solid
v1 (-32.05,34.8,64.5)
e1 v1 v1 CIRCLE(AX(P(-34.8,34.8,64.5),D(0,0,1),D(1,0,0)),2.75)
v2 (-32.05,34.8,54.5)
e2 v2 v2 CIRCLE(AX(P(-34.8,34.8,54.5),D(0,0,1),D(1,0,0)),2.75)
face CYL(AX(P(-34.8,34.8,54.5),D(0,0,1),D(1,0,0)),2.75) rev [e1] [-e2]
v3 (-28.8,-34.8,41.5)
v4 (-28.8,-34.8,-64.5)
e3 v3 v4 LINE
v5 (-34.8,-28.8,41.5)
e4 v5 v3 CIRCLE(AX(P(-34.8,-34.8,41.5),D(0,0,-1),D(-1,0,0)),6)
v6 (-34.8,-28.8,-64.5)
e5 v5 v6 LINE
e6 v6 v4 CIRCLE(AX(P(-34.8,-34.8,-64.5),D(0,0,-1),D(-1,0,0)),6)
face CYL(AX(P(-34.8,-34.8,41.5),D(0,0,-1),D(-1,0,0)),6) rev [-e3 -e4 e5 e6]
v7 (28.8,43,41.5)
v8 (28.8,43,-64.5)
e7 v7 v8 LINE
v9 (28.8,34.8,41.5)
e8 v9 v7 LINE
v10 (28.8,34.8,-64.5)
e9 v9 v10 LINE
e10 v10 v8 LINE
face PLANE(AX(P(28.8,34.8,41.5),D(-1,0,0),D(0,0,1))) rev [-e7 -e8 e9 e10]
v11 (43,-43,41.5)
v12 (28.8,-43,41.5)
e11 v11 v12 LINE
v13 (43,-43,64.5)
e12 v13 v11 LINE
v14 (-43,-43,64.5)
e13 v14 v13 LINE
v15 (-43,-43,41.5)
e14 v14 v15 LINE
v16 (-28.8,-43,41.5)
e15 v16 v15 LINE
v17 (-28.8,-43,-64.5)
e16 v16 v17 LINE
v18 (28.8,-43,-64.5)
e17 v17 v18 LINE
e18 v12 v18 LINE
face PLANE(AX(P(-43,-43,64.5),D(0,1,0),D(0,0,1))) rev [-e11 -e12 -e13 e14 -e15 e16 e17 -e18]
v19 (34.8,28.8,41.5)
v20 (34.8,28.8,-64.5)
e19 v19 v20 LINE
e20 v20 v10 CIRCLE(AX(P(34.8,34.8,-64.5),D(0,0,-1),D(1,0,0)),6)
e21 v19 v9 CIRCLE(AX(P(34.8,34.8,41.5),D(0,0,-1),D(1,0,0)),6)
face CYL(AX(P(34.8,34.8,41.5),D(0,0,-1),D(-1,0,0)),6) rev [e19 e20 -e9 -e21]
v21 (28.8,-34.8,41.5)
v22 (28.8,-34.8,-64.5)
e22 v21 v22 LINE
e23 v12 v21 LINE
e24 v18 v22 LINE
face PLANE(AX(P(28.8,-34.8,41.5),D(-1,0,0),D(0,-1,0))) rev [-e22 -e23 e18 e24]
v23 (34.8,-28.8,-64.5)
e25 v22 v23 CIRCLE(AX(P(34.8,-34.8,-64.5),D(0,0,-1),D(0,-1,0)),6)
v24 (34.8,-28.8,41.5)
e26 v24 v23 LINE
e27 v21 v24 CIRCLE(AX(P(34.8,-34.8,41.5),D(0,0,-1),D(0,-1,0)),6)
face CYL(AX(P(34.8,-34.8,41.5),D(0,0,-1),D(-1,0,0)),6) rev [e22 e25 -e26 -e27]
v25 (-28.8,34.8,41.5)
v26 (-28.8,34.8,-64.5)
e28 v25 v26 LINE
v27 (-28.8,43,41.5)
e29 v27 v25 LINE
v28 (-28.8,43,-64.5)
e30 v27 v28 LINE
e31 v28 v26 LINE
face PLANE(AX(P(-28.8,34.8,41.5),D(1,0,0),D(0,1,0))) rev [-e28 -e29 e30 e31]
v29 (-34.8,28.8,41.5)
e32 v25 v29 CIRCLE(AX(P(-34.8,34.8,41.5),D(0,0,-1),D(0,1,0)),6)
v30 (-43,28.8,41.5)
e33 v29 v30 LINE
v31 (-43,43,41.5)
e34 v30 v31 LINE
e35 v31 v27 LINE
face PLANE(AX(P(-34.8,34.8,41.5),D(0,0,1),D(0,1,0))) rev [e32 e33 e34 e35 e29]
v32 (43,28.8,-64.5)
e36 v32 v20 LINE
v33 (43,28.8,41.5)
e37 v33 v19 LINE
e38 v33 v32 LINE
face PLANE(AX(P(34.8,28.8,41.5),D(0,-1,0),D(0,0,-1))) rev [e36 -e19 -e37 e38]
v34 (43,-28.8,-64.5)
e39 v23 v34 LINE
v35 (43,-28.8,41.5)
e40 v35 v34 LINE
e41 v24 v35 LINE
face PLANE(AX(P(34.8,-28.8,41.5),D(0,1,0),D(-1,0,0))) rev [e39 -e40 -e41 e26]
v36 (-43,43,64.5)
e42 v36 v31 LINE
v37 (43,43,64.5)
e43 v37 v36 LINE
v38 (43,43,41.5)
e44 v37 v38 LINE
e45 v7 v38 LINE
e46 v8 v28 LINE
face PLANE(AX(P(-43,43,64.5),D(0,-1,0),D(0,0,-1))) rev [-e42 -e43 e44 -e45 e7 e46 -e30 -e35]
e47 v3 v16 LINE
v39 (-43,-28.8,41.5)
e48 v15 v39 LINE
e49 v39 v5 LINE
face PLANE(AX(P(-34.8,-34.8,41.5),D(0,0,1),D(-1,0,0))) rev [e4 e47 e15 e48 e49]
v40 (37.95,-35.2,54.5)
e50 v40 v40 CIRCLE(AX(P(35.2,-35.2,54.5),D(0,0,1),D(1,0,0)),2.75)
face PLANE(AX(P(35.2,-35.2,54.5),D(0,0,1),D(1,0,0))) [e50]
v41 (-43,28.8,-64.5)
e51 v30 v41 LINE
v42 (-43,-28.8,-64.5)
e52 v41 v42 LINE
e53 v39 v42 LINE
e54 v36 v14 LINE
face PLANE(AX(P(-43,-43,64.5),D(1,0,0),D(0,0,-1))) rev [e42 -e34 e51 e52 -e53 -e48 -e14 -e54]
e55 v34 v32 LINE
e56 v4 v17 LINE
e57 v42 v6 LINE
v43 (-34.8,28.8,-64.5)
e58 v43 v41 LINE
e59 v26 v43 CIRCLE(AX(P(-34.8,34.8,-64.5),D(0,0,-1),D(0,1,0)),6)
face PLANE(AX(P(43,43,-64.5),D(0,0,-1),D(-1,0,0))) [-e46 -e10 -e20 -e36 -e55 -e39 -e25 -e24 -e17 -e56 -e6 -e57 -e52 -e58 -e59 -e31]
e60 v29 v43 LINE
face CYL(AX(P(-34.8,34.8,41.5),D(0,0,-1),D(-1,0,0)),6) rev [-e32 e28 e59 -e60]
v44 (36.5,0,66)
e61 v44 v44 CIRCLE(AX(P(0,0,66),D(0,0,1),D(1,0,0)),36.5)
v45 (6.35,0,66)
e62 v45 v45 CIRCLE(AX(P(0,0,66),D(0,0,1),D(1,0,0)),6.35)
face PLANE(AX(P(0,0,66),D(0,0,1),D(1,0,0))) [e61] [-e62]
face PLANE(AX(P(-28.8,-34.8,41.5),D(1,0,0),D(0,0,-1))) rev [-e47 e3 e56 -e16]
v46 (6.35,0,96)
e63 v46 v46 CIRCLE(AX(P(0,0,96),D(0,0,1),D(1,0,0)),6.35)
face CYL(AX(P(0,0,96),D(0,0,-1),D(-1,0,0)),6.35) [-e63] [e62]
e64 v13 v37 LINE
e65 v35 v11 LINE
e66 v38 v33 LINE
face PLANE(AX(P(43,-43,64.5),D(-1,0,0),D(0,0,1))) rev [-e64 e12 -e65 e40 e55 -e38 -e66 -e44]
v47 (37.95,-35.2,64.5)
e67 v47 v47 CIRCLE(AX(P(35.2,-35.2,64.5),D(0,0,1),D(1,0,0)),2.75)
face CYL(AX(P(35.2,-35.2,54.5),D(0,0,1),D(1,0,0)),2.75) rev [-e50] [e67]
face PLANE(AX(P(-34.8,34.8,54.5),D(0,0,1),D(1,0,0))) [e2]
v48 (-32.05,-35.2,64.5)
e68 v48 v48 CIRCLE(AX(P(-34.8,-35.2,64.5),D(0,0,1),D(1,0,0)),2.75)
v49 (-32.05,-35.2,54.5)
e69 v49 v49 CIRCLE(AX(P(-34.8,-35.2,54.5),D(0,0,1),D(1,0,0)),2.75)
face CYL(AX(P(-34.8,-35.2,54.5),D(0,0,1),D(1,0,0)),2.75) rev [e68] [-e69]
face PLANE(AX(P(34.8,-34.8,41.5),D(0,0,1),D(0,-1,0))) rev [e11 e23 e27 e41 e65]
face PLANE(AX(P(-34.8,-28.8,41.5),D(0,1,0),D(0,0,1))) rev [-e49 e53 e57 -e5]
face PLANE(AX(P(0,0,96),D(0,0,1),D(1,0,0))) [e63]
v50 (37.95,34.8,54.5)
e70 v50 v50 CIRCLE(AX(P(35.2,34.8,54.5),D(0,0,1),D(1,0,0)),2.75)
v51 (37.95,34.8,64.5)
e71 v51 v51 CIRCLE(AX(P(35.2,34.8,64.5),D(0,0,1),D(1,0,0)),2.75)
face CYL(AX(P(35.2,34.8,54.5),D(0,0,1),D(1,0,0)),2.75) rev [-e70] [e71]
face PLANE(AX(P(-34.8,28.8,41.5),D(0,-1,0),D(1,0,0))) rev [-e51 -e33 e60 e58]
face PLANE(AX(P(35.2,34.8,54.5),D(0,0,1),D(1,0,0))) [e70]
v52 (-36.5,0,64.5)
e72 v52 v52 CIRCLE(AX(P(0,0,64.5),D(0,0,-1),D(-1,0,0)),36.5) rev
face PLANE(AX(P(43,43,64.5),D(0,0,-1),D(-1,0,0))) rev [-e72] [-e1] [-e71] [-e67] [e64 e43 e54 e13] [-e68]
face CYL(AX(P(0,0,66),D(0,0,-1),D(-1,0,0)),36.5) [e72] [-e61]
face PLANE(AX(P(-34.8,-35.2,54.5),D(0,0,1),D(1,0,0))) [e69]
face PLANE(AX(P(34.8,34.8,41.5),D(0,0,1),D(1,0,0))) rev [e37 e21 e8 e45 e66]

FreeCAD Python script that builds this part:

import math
import FreeCAD as App
import Part
import Sketcher
from FreeCAD import Vector
Q = App.Units.Quantity

doc = App.newDocument("Part")
body = doc.addObject("PartDesign::Body", "Body")

# Sketch on XY plane
sketch1 = doc.addObject("Sketcher::SketchObject", "Sketch")
body.addObject(sketch1)
sketch1.AttachmentSupport = (doc.XY_Plane, [""])
sketch1.MapMode = "FlatFace"
sketch1.addGeometry(Part.LineSegment(Vector(-43, 43, 0), Vector(-43, -43, 0)), False)
sketch1.addGeometry(Part.LineSegment(Vector(-43, -43, 0), Vector(43, -43, 0)), False)
sketch1.addGeometry(Part.LineSegment(Vector(43, -43, 0), Vector(43, 43, 0)), False)
sketch1.addGeometry(Part.LineSegment(Vector(43, 43, 0), Vector(-43, 43, 0)), False)
sketch1.addConstraint(Sketcher.Constraint("Coincident", 0, 2, 1, 1))
sketch1.addConstraint(Sketcher.Constraint("Coincident", 1, 2, 2, 1))
sketch1.addConstraint(Sketcher.Constraint("Coincident", 2, 2, 3, 1))
sketch1.addConstraint(Sketcher.Constraint("Coincident", 3, 2, 0, 1))
sketch1.addConstraint(Sketcher.Constraint("Vertical", 0))
sketch1.addConstraint(Sketcher.Constraint("Horizontal", 1))
sketch1.addConstraint(Sketcher.Constraint("Vertical", 2))
sketch1.addConstraint(Sketcher.Constraint("Horizontal", 3))
sketch1.addConstraint(Sketcher.Constraint("Symmetric", 0, 2, 2, 2, -1, 1))
sketch1.addConstraint(Sketcher.Constraint("Equal", 3, 0))
sketch1.addConstraint(Sketcher.Constraint("DistanceX", 1, 1, 1, 2, Q("86 mm")))
pad1 = doc.addObject("PartDesign::Pad", "Pad")
body.addObject(pad1)
pad1.Profile = sketch1
pad1.Length = 129
pad1.Midplane = True

# Sketch on XY plane
sketch2 = doc.addObject("Sketcher::SketchObject", "Sketch001")
body.addObject(sketch2)
sketch2.AttachmentSupport = (doc.XY_Plane, [""])
sketch2.MapMode = "FlatFace"
sketch2.AttachmentOffset = App.Placement(Vector(0, 0, -64.5), App.Rotation())
sketch2.addGeometry(Part.LineSegment(Vector(28.8, 34.8, 0), Vector(28.8, 43, 0)), False)
sketch2.addGeometry(Part.LineSegment(Vector(28.8, 43, 0), Vector(43, 43, 0)), False)
sketch2.addGeometry(Part.LineSegment(Vector(43, 43, 0), Vector(43, 28.8, 0)), False)
sketch2.addGeometry(Part.LineSegment(Vector(43, 28.8, 0), Vector(34.8, 28.8, 0)), False)
sketch2.addGeometry(Part.ArcOfCircle(Part.Circle(Vector(34.8, 34.8, 0), Vector(0, 0, 1), 6), math.radians(180), math.radians(270)), False)
sketch2.addConstraint(Sketcher.Constraint("Coincident", 0, 2, 1, 1))
sketch2.addConstraint(Sketcher.Constraint("Coincident", 1, 2, 2, 1))
sketch2.addConstraint(Sketcher.Constraint("Coincident", 2, 2, 3, 1))
sketch2.addConstraint(Sketcher.Constraint("Tangent", 3, 2, 4, 2))
sketch2.addConstraint(Sketcher.Constraint("Tangent", 4, 1, 0, 1))
sketch2.addConstraint(Sketcher.Constraint("Vertical", 0))
sketch2.addConstraint(Sketcher.Constraint("Horizontal", 1))
sketch2.addConstraint(Sketcher.Constraint("Vertical", 2))
sketch2.addConstraint(Sketcher.Constraint("Horizontal", 3))
sketch2.addConstraint(Sketcher.Constraint("Equal", 3, 0))
sketch2.addConstraint(Sketcher.Constraint("Radius", 4, Q("6 mm")))
sketch2.addConstraint(Sketcher.Constraint("DistanceX", 1, 1, 1, 2, Q("14.2 mm")))
sketch2.addConstraint(Sketcher.Constraint("DistanceY", -1, 1, 0, 2, Q("43 mm")))
sketch2.addConstraint(Sketcher.Constraint("DistanceX", -1, 1, 1, 2, Q("43 mm")))
pocket1 = doc.addObject("PartDesign::Pocket", "Pocket")
body.addObject(pocket1)
pocket1.Profile = sketch2
pocket1.Length = 106
pocket1.Reversed = True
doc.recompute()

polarpattern = doc.addObject("PartDesign::PolarPattern", "PolarPattern")
body.addObject(polarpattern)
polarpattern.Originals = [pocket1]
polarpattern.Axis = (doc.Z_Axis, [""])
polarpattern.Angle = 360
polarpattern.Occurrences = 4
body.Tip = polarpattern

# Sketch on XY plane
sketch3 = doc.addObject("Sketcher::SketchObject", "Sketch002")
body.addObject(sketch3)
sketch3.AttachmentSupport = (doc.XY_Plane, [""])
sketch3.MapMode = "FlatFace"
sketch3.AttachmentOffset = App.Placement(Vector(0, 0, 64.5), App.Rotation())
sketch3.addGeometry(Part.Circle(Vector(-34.8, 34.8, 0), Vector(0, 0, 1), 2.75), False)
sketch3.addGeometry(Part.Circle(Vector(35.2, 34.8, 0), Vector(0, 0, 1), 2.75), False)
sketch3.addGeometry(Part.Circle(Vector(35.2, -35.2, 0), Vector(0, 0, 1), 2.75), False)
sketch3.addGeometry(Part.Circle(Vector(-34.8, -35.2, 0), Vector(0, 0, 1), 2.75), False)
sketch3.addConstraint(Sketcher.Constraint("Equal", 0, 1))
sketch3.addConstraint(Sketcher.Constraint("Equal", 1, 2))
sketch3.addConstraint(Sketcher.Constraint("Equal", 2, 3))
sketch3.addConstraint(Sketcher.Constraint("Horizontal", 0, 3, 1, 3))
sketch3.addConstraint(Sketcher.Constraint("Horizontal", 2, 3, 3, 3))
sketch3.addConstraint(Sketcher.Constraint("Vertical", 1, 3, 2, 3))
sketch3.addConstraint(Sketcher.Constraint("Vertical", 0, 3, 3, 3))
sketch3.addConstraint(Sketcher.Constraint("Diameter", 0, Q("5.5 mm")))
sketch3.addConstraint(Sketcher.Constraint("DistanceX", 0, 3, 1, 3, Q("70 mm")))
sketch3.addConstraint(Sketcher.Constraint("DistanceY", 2, 3, 1, 3, Q("70 mm")))
sketch3.addConstraint(Sketcher.Constraint("DistanceX", 0, 3, -1, 1, Q("34.8 mm")))
sketch3.addConstraint(Sketcher.Constraint("DistanceY", -1, 1, 0, 3, Q("34.8 mm")))
pocket2 = doc.addObject("PartDesign::Pocket", "Pocket001")
body.addObject(pocket2)
pocket2.Profile = sketch3
pocket2.Length = 10

# Sketch on XY plane
sketch4 = doc.addObject("Sketcher::SketchObject", "Sketch003")
body.addObject(sketch4)
sketch4.AttachmentSupport = (doc.XY_Plane, [""])
sketch4.MapMode = "FlatFace"
sketch4.AttachmentOffset = App.Placement(Vector(0, 0, 64.5), App.Rotation())
sketch4.addGeometry(Part.Circle(Vector(0, 0, 0), Vector(0, 0, 1), 36.5), False)
sketch4.addConstraint(Sketcher.Constraint("Coincident", 0, 3, -1, 1))
sketch4.addConstraint(Sketcher.Constraint("Diameter", 0, Q("73 mm")))
pad2 = doc.addObject("PartDesign::Pad", "Pad001")
body.addObject(pad2)
pad2.Profile = sketch4
pad2.Length = 1.5

# Sketch on XY plane
sketch5 = doc.addObject("Sketcher::SketchObject", "Sketch004")
body.addObject(sketch5)
sketch5.AttachmentSupport = (doc.XY_Plane, [""])
sketch5.MapMode = "FlatFace"
sketch5.AttachmentOffset = App.Placement(Vector(0, 0, 66), App.Rotation())
sketch5.addGeometry(Part.Circle(Vector(0, 0, 0), Vector(0, 0, 1), 6.35), False)
sketch5.addConstraint(Sketcher.Constraint("Coincident", 0, 3, -1, 1))
sketch5.addConstraint(Sketcher.Constraint("Diameter", 0, Q("12.7 mm")))
pad3 = doc.addObject("PartDesign::Pad", "Pad002")
body.addObject(pad3)
pad3.Profile = sketch5
pad3.Length = 30

doc.recompute()
